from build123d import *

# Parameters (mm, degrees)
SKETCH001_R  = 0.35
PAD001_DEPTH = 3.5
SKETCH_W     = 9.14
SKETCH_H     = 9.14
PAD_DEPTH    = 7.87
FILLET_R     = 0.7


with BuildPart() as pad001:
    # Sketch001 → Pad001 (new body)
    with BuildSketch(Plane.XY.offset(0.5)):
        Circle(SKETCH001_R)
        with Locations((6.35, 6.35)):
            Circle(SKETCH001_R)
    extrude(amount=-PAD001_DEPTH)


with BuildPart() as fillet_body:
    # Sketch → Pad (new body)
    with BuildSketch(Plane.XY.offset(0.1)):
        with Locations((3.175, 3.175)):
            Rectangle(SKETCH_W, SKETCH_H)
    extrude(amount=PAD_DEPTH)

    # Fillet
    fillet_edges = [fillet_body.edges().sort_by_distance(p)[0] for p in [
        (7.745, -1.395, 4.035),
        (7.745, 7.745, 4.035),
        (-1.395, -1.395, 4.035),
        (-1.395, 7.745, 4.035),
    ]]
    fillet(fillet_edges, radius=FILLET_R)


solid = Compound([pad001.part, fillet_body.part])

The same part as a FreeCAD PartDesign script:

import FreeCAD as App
import Part
import Sketcher
Q = App.Units.Quantity


def edges_at(feature, points):
    """Names of the edges that pass closest to the given points."""
    edges = feature.Shape.Edges
    near = lambda p: min(range(len(edges)), key=lambda i: edges[i].distToShape(Part.Vertex(*p))[0])
    return sorted({f"Edge{near(p) + 1}" for p in points})

doc = App.newDocument("Part")
body = doc.addObject("PartDesign::Body", "Body")
body.AllowCompound = True

# Sketch on XY plane
sketch1 = body.newObject("Sketcher::SketchObject", "Sketch")
sketch1.AttachmentSupport = (doc.getObject("XY_Plane"), [""])
sketch1.MapMode = "FlatFace"
sketch1.AttachmentOffset = App.Placement(App.Vector(0, 0, 0.5), App.Rotation())
sketch1.addGeometry([
    Part.Circle(App.Vector(0, 0, 0), App.Vector(0, 0, 1), 0.35),
    Part.Circle(App.Vector(6.35, 6.35, 0), App.Vector(0, 0, 1), 0.35),
], False)
sketch1.addConstraint([
    Sketcher.Constraint("Coincident", 0, 3, -1, 1),
    Sketcher.Constraint("Equal", 0, 1),
    Sketcher.Constraint("Diameter", 0, Q("0.7 mm")),
    Sketcher.Constraint("DistanceX", -1, 1, 1, 3, Q("6.35 mm")),
    Sketcher.Constraint("DistanceY", -1, 1, 1, 3, Q("6.35 mm")),
])
pad1 = body.newObject("PartDesign::Pad", "Pad")
pad1.Profile = sketch1
pad1.Length = 3.5
pad1.Reversed = True
body2 = doc.addObject("PartDesign::Body", "Body001")

# Sketch on XY plane
sketch2 = body2.newObject("Sketcher::SketchObject", "Sketch001")
sketch2.AttachmentSupport = (doc.getObject("XY_Plane001"), [""])
sketch2.MapMode = "FlatFace"
sketch2.AttachmentOffset = App.Placement(App.Vector(0, 0, 0.1), App.Rotation())
sketch2.addGeometry([
    Part.LineSegment(App.Vector(-1, 8, 0), App.Vector(-1, -1, 0)),
    Part.LineSegment(App.Vector(-1, -1, 0), App.Vector(8, -1, 0)),
    Part.LineSegment(App.Vector(8, -1, 0), App.Vector(8, 8, 0)),
    Part.LineSegment(App.Vector(8, 8, 0), App.Vector(-1, 8, 0)),
], False)
sketch2.addConstraint([
    Sketcher.Constraint("Coincident", 0, 2, 1, 1),
    Sketcher.Constraint("Coincident", 1, 2, 2, 1),
    Sketcher.Constraint("Coincident", 2, 2, 3, 1),
    Sketcher.Constraint("Coincident", 3, 2, 0, 1),
    Sketcher.Constraint("Vertical", 0),
    Sketcher.Constraint("Horizontal", 1),
    Sketcher.Constraint("Vertical", 2),
    Sketcher.Constraint("Horizontal", 3),
    Sketcher.Constraint("Equal", 3, 0),
    Sketcher.Constraint("DistanceX", 1, 1, 1, 2, Q("9.14 mm")),
    Sketcher.Constraint("DistanceX", 0, 2, -1, 1, Q("1.395 mm")),
    Sketcher.Constraint("DistanceY", 0, 2, -1, 1, Q("1.395 mm")),
])
pad2 = body2.newObject("PartDesign::Pad", "Pad001")
pad2.Profile = sketch2
pad2.Length = 7.87
doc.recompute()

fillet = body2.newObject("PartDesign::Fillet", "Fillet")
fillet.Base = (pad2, edges_at(pad2, [
    (7.745, -1.395, 4.035),
    (7.745, 7.745, 4.035),
    (-1.395, -1.395, 4.035),
    (-1.395, 7.745, 4.035),
]))
fillet.Radius = 0.7

doc.recompute()
